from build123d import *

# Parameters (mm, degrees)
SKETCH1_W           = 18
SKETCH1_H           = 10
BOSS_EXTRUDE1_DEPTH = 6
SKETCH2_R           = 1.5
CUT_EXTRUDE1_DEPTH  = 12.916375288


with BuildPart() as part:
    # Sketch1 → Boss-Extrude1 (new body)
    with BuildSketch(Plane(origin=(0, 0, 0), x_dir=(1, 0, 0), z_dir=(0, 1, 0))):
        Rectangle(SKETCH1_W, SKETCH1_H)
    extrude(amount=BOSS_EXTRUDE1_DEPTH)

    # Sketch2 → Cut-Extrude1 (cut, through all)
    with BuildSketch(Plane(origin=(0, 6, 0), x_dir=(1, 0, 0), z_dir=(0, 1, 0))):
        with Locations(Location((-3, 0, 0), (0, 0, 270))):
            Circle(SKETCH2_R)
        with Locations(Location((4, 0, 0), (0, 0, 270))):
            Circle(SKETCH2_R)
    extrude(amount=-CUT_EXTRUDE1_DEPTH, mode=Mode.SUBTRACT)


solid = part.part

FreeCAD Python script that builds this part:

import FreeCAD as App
import Part
import Sketcher

doc = App.newDocument("Part")
body = doc.addObject("PartDesign::Body", "Body")

# Sketch on XZ plane
sketch1 = body.newObject("Sketcher::SketchObject", "Sketch")
sketch1.AttachmentSupport = (doc.getObject("XZ_Plane"), [""])
sketch1.MapMode = "FlatFace"
sketch1.addGeometry(Part.LineSegment(App.Vector(-9, -5, 0), App.Vector(-9, 5, 0)), False)
sketch1.addGeometry(Part.LineSegment(App.Vector(-9, 5, 0), App.Vector(9, 5, 0)), False)
sketch1.addGeometry(Part.LineSegment(App.Vector(9, 5, 0), App.Vector(9, -5, 0)), False)
sketch1.addGeometry(Part.LineSegment(App.Vector(9, -5, 0), App.Vector(-9, -5, 0)), False)
sketch1.addConstraint(Sketcher.Constraint("Coincident", 0, 2, 1, 1))
sketch1.addConstraint(Sketcher.Constraint("Coincident", 1, 2, 2, 1))
sketch1.addConstraint(Sketcher.Constraint("Coincident", 2, 2, 3, 1))
sketch1.addConstraint(Sketcher.Constraint("Coincident", 3, 2, 0, 1))
sketch1.addConstraint(Sketcher.Constraint("Vertical", 0))
sketch1.addConstraint(Sketcher.Constraint("Horizontal", 1))
sketch1.addConstraint(Sketcher.Constraint("Vertical", 2))
sketch1.addConstraint(Sketcher.Constraint("Horizontal", 3))
sketch1.addConstraint(Sketcher.Constraint("Symmetric", 0, 2, 2, 2, -1, 1))
sketch1.addConstraint(Sketcher.Constraint("DistanceX", 1, 1, 1, 2, 18.0))
sketch1.addConstraint(Sketcher.Constraint("DistanceY", 0, 1, 0, 2, 10.0))
pad1 = body.newObject("PartDesign::Pad", "Pad")
pad1.Profile = sketch1
pad1.Length = 6
pad1.Reversed = True

# Sketch on XZ plane
sketch2 = body.newObject("Sketcher::SketchObject", "Sketch001")
sketch2.AttachmentSupport = (doc.getObject("XZ_Plane"), [""])
sketch2.MapMode = "FlatFace"
sketch2.AttachmentOffset = App.Placement(App.Vector(0, 0, -6), App.Rotation())
sketch2.addGeometry(Part.Circle(App.Vector(-3, 0, 0), App.Vector(0, 0, 1), 1.5), False)
sketch2.addGeometry(Part.Circle(App.Vector(4, 0, 0), App.Vector(0, 0, 1), 1.5), False)
sketch2.addConstraint(Sketcher.Constraint("Equal", 0, 1))
sketch2.addConstraint(Sketcher.Constraint("PointOnObject", 0, 3, -1))
sketch2.addConstraint(Sketcher.Constraint("PointOnObject", 1, 3, -1))
sketch2.addConstraint(Sketcher.Constraint("Diameter", 0, 3.0))
sketch2.addConstraint(Sketcher.Constraint("DistanceX", 0, 3, -1, 1, 3.0))
sketch2.addConstraint(Sketcher.Constraint("DistanceX", -1, 1, 1, 3, 4.0))
pocket1 = body.newObject("PartDesign::Pocket", "Pocket")
pocket1.Profile = sketch2
pocket1.Type = "ThroughAll"
pocket1.Reversed = True

doc.recompute()
